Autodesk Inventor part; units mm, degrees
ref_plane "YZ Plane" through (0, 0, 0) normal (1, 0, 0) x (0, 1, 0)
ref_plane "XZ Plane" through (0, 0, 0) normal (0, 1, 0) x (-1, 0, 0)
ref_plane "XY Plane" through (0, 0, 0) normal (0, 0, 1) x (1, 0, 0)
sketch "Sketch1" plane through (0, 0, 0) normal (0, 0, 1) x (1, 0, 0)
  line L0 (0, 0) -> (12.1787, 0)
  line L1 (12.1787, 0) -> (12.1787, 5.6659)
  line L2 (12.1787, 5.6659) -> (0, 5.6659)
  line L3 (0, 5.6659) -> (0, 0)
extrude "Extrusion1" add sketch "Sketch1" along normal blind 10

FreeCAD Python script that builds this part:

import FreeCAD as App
import Part
import Sketcher

V = App.Vector
Q = App.Units.Quantity


def add_polygon(sketch, points):
    """Adds a closed chain of lines whose ends are joined by coincident constraints."""
    first, n = sketch.GeometryCount, len(points)
    for a, b in zip(points, points[1:] + points[:1]):
        sketch.addGeometry(Part.LineSegment(App.Vector(*a, 0), App.Vector(*b, 0)), False)
    for i in range(n):
        sketch.addConstraint(Sketcher.Constraint("Coincident", first + i, 2, first + (i + 1) % n, 1))

doc = App.newDocument("Part")
body = doc.addObject("PartDesign::Body", "Body")

sketch1 = body.newObject("Sketcher::SketchObject", "Sketch")
sketch1.AttachmentSupport = (doc.getObject("XY_Plane"), [""])
sketch1.MapMode = "FlatFace"
add_polygon(sketch1, [(0, 6), (0, 0), (12, 0), (12, 6)])
sketch1.addConstraint([
    Sketcher.Constraint("Vertical", 0),
    Sketcher.Constraint("Horizontal", 1),
    Sketcher.Constraint("Vertical", 2),
    Sketcher.Constraint("Horizontal", 3),
    Sketcher.Constraint("Coincident", 0, 2, -1, 1),
    Sketcher.Constraint("DistanceY", 0, 2, 0, 1, Q("5.666 mm")),
    Sketcher.Constraint("DistanceX", 1, 1, 1, 2, Q("12.1787 mm")),
])
pad1 = body.newObject("PartDesign::Pad", "Pad")
pad1.Profile = sketch1
pad1.Length = 10

doc.recompute()
